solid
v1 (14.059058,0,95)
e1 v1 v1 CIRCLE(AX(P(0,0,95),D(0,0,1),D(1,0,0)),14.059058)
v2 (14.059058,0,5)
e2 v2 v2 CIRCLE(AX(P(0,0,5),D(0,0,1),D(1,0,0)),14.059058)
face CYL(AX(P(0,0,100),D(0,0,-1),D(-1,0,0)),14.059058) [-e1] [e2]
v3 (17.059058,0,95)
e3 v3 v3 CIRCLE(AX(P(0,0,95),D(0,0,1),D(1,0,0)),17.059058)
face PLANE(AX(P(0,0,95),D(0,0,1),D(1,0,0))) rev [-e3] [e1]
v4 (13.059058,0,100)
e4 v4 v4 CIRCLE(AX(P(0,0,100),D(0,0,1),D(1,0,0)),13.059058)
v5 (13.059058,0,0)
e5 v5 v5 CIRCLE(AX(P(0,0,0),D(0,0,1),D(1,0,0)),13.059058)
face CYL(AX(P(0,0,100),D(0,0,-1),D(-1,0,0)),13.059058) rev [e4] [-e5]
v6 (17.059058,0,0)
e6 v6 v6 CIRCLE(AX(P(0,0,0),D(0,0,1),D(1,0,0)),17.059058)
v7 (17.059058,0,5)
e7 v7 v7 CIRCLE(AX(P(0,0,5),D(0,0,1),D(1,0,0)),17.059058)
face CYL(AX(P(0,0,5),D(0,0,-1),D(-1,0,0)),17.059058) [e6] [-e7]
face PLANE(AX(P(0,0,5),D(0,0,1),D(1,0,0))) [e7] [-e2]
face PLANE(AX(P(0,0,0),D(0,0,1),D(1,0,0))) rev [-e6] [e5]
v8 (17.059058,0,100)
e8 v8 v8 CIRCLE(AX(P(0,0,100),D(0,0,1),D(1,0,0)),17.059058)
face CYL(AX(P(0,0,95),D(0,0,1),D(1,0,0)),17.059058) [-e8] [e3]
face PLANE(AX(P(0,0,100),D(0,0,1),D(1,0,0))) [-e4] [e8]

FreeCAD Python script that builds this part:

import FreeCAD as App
import Part
import Sketcher
from FreeCAD import Vector

doc = App.newDocument("Part")
params = doc.addObject("Spreadsheet::Sheet", "Params")
for row, (alias, value) in enumerate([
    ("pad1_length", "100 mm"),
    ("pad2_length", "5 mm"),
    ("pad3_length", "5 mm"),
], start=1):
    params.set(f"A{row}", alias)
    params.set(f"B{row}", "=" + value)
    params.setAlias(f"B{row}", alias)

body = doc.addObject("PartDesign::Body", "Body")

sketch1 = doc.addObject("Sketcher::SketchObject", "Sketch")
body.addObject(sketch1)
sketch1.AttachmentSupport = (doc.XY_Plane, [""])
sketch1.MapMode = "FlatFace"
sketch1.addGeometry(Part.Circle(Vector(0, 0, 0), Vector(0, 0, 1), 14.059058), False)
sketch1.addGeometry(Part.Circle(Vector(0, 0, 0), Vector(0, 0, 1), 13.059058), False)
sketch1.addConstraint(Sketcher.Constraint("Coincident", 0, 3, -1, 1))
sketch1.addConstraint(Sketcher.Constraint("Coincident", 1, 3, -1, 1))
sketch1.addConstraint(Sketcher.Constraint("Diameter", 0, 28.118117))
sketch1.addConstraint(Sketcher.Constraint("Diameter", 1, 26.118117))
pad1 = doc.addObject("PartDesign::Pad", "Pad")
body.addObject(pad1)
pad1.Profile = sketch1
pad1.setExpression("Length", "Params.pad1_length")

sketch2 = doc.addObject("Sketcher::SketchObject", "Sketch001")
body.addObject(sketch2)
sketch2.AttachmentSupport = (doc.XY_Plane, [""])
sketch2.MapMode = "FlatFace"
sketch2.addGeometry(Part.Circle(Vector(0, 0, 0), Vector(0, 0, 1), 17.059058), False)
sketch2.addGeometry(Part.Circle(Vector(0, 0, 0), Vector(0, 0, 1), 14.059058), False)
sketch2.addConstraint(Sketcher.Constraint("Coincident", 0, 3, -1, 1))
sketch2.addConstraint(Sketcher.Constraint("Coincident", 1, 3, -1, 1))
sketch2.addConstraint(Sketcher.Constraint("Diameter", 0, 34.118117))
sketch2.addConstraint(Sketcher.Constraint("Diameter", 1, 28.118117))
pad2 = doc.addObject("PartDesign::Pad", "Pad001")
body.addObject(pad2)
pad2.Profile = sketch2
pad2.setExpression("Length", "Params.pad2_length")

sketch3 = doc.addObject("Sketcher::SketchObject", "Sketch002")
body.addObject(sketch3)
sketch3.AttachmentSupport = (doc.XY_Plane, [""])
sketch3.MapMode = "FlatFace"
sketch3.AttachmentOffset = App.Placement(Vector(0, 0, 95), App.Rotation())
sketch3.addGeometry(Part.Circle(Vector(0, 0, 0), Vector(0, 0, 1), 17.059058), False)
sketch3.addGeometry(Part.Circle(Vector(0, 0, 0), Vector(0, 0, 1), 14.059058), False)
sketch3.addConstraint(Sketcher.Constraint("Coincident", 0, 3, -1, 1))
sketch3.addConstraint(Sketcher.Constraint("Coincident", 1, 3, -1, 1))
sketch3.addConstraint(Sketcher.Constraint("Diameter", 0, 34.118117))
sketch3.addConstraint(Sketcher.Constraint("Diameter", 1, 28.118117))
pad3 = doc.addObject("PartDesign::Pad", "Pad002")
body.addObject(pad3)
pad3.Profile = sketch3
pad3.setExpression("Length", "Params.pad3_length")

doc.recompute()
